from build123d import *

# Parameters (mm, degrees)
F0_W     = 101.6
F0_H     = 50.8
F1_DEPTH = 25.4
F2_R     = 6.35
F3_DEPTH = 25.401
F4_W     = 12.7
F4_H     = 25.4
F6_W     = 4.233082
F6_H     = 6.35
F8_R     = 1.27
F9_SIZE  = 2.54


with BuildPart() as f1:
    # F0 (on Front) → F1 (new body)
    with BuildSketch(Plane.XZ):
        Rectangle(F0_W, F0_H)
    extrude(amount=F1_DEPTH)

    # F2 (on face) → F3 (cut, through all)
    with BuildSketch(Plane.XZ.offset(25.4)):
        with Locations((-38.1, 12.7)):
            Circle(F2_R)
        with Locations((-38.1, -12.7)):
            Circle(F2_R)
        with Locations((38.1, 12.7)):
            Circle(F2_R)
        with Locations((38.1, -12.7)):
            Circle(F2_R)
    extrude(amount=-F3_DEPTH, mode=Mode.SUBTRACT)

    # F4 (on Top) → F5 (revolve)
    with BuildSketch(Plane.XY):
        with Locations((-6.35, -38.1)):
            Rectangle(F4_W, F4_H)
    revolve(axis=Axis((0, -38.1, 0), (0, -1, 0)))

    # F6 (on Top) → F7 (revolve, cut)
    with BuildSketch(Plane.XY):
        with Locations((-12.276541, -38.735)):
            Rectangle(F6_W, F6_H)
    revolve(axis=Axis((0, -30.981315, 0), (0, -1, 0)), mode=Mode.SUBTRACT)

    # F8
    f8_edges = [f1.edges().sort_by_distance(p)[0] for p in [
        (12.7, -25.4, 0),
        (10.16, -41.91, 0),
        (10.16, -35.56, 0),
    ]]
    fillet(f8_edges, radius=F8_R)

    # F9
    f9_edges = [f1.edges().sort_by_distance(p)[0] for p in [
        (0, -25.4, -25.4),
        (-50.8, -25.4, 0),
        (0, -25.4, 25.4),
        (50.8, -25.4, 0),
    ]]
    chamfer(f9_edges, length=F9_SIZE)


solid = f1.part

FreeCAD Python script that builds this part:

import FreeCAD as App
import Part
import Sketcher
Q = App.Units.Quantity


def edges_at(feature, points):
    """Names of the edges that pass closest to the given points."""
    edges = feature.Shape.Edges
    near = lambda p: min(range(len(edges)), key=lambda i: edges[i].distToShape(Part.Vertex(*p))[0])
    return sorted({f"Edge{near(p) + 1}" for p in points})

doc = App.newDocument("Part")
body = doc.addObject("PartDesign::Body", "Body")

sketch1 = body.newObject("Sketcher::SketchObject", "Sketch")
sketch1.AttachmentSupport = (doc.getObject("XZ_Plane"), [""])
sketch1.MapMode = "FlatFace"
sketch1.addGeometry(Part.LineSegment(App.Vector(-51, 25, 0), App.Vector(-51, -25, 0)), False)
sketch1.addGeometry(Part.LineSegment(App.Vector(-51, -25, 0), App.Vector(51, -25, 0)), False)
sketch1.addGeometry(Part.LineSegment(App.Vector(51, -25, 0), App.Vector(51, 25, 0)), False)
sketch1.addGeometry(Part.LineSegment(App.Vector(51, 25, 0), App.Vector(-51, 25, 0)), False)
sketch1.addConstraint(Sketcher.Constraint("Coincident", 0, 2, 1, 1))
sketch1.addConstraint(Sketcher.Constraint("Coincident", 1, 2, 2, 1))
sketch1.addConstraint(Sketcher.Constraint("Coincident", 2, 2, 3, 1))
sketch1.addConstraint(Sketcher.Constraint("Coincident", 3, 2, 0, 1))
sketch1.addConstraint(Sketcher.Constraint("Vertical", 0))
sketch1.addConstraint(Sketcher.Constraint("Horizontal", 1))
sketch1.addConstraint(Sketcher.Constraint("Vertical", 2))
sketch1.addConstraint(Sketcher.Constraint("Horizontal", 3))
sketch1.addConstraint(Sketcher.Constraint("Symmetric", 0, 2, 2, 2, -1, 1))
sketch1.addConstraint(Sketcher.Constraint("DistanceX", 1, 1, 1, 2, Q("4 in")))
sketch1.addConstraint(Sketcher.Constraint("DistanceY", 0, 2, 0, 1, Q("2 in")))
pad1 = body.newObject("PartDesign::Pad", "Pad")
pad1.Profile = sketch1
pad1.Length = Q("1 in")

sketch2 = body.newObject("Sketcher::SketchObject", "Sketch001")
sketch2.AttachmentSupport = (doc.getObject("XZ_Plane"), [""])
sketch2.MapMode = "FlatFace"
sketch2.AttachmentOffset = App.Placement(App.Vector(0, 0, 1 * 25.4), App.Rotation())
sketch2.addGeometry(Part.Circle(App.Vector(-38, 13, 0), App.Vector(0, 0, 1), 6), False)
sketch2.addGeometry(Part.Circle(App.Vector(-38, -13, 0), App.Vector(0, 0, 1), 6), False)
sketch2.addGeometry(Part.Circle(App.Vector(38, 13, 0), App.Vector(0, 0, 1), 6), False)
sketch2.addGeometry(Part.Circle(App.Vector(38, -13, 0), App.Vector(0, 0, 1), 6), False)
sketch2.addConstraint(Sketcher.Constraint("Equal", 0, 1))
sketch2.addConstraint(Sketcher.Constraint("Equal", 1, 2))
sketch2.addConstraint(Sketcher.Constraint("Equal", 2, 3))
sketch2.addConstraint(Sketcher.Constraint("Symmetric", 1, 3, 2, 3, -1, 1))
sketch2.addConstraint(Sketcher.Constraint("Symmetric", 0, 3, 3, 3, -1, 1))
sketch2.addConstraint(Sketcher.Constraint("Symmetric", 0, 3, 2, 3, -2))
sketch2.addConstraint(Sketcher.Constraint("Diameter", 0, Q("0.5 in")))
sketch2.addConstraint(Sketcher.Constraint("DistanceY", 1, 3, 0, 3, Q("1 in")))
sketch2.addConstraint(Sketcher.Constraint("DistanceX", 0, 3, 2, 3, Q("3 in")))
pocket1 = body.newObject("PartDesign::Pocket", "Pocket")
pocket1.Profile = sketch2
pocket1.Type = "ThroughAll"

sketch3 = body.newObject("Sketcher::SketchObject", "Sketch002")
sketch3.AttachmentSupport = (doc.getObject("XY_Plane"), [""])
sketch3.MapMode = "FlatFace"
sketch3.addGeometry(Part.LineSegment(App.Vector(-13, -25, 0), App.Vector(-13, -51, 0)), False)
sketch3.addGeometry(Part.LineSegment(App.Vector(-13, -51, 0), App.Vector(0, -51, 0)), False)
sketch3.addGeometry(Part.LineSegment(App.Vector(0, -51, 0), App.Vector(0, -25, 0)), False)
sketch3.addGeometry(Part.LineSegment(App.Vector(0, -25, 0), App.Vector(-13, -25, 0)), False)
sketch3.addConstraint(Sketcher.Constraint("Coincident", 0, 2, 1, 1))
sketch3.addConstraint(Sketcher.Constraint("Coincident", 1, 2, 2, 1))
sketch3.addConstraint(Sketcher.Constraint("Coincident", 2, 2, 3, 1))
sketch3.addConstraint(Sketcher.Constraint("Coincident", 3, 2, 0, 1))
sketch3.addConstraint(Sketcher.Constraint("Vertical", 0))
sketch3.addConstraint(Sketcher.Constraint("Horizontal", 1))
sketch3.addConstraint(Sketcher.Constraint("Vertical", 2))
sketch3.addConstraint(Sketcher.Constraint("Horizontal", 3))
sketch3.addConstraint(Sketcher.Constraint("PointOnObject", 1, 2, -2))
sketch3.addConstraint(Sketcher.Constraint("DistanceY", 0, 2, 0, 1, Q("1 in")))
sketch3.addConstraint(Sketcher.Constraint("DistanceX", 1, 1, 1, 2, Q("0.5 in")))
sketch3.addConstraint(Sketcher.Constraint("DistanceY", 0, 2, -1, 1, Q("2 in")))
revolution = body.newObject("PartDesign::Revolution", "Revolution")
revolution.Profile = sketch3
revolution.ReferenceAxis = (sketch3, ["V_Axis"])
revolution.Angle = 360

sketch4 = body.newObject("Sketcher::SketchObject", "Sketch003")
sketch4.AttachmentSupport = (doc.getObject("XY_Plane"), [""])
sketch4.MapMode = "FlatFace"
sketch4.addGeometry(Part.LineSegment(App.Vector(-14.4, -35.6, 0), App.Vector(-14.4, -41.9, 0)), False)
sketch4.addGeometry(Part.LineSegment(App.Vector(-14.4, -41.9, 0), App.Vector(-10.2, -41.9, 0)), False)
sketch4.addGeometry(Part.LineSegment(App.Vector(-10.2, -41.9, 0), App.Vector(-10.2, -35.6, 0)), False)
sketch4.addGeometry(Part.LineSegment(App.Vector(-10.2, -35.6, 0), App.Vector(-14.4, -35.6, 0)), False)
sketch4.addConstraint(Sketcher.Constraint("Coincident", 0, 2, 1, 1))
sketch4.addConstraint(Sketcher.Constraint("Coincident", 1, 2, 2, 1))
sketch4.addConstraint(Sketcher.Constraint("Coincident", 2, 2, 3, 1))
sketch4.addConstraint(Sketcher.Constraint("Coincident", 3, 2, 0, 1))
sketch4.addConstraint(Sketcher.Constraint("Vertical", 0))
sketch4.addConstraint(Sketcher.Constraint("Horizontal", 1))
sketch4.addConstraint(Sketcher.Constraint("Vertical", 2))
sketch4.addConstraint(Sketcher.Constraint("Horizontal", 3))
sketch4.addConstraint(Sketcher.Constraint("DistanceY", 0, 2, 0, 1, Q("0.25 in")))
sketch4.addConstraint(Sketcher.Constraint("DistanceX", 1, 2, -1, 1, Q("0.4 in")))
sketch4.addConstraint(Sketcher.Constraint("DistanceY", 2, 2, -1, 1, Q("1.4 in")))
sketch4.addConstraint(Sketcher.Constraint("DistanceX", 1, 1, 1, 2, Q("4.233082 mm")))
groove = body.newObject("PartDesign::Groove", "Groove")
groove.Profile = sketch4
groove.ReferenceAxis = (sketch4, ["V_Axis"])
groove.Angle = 360
doc.recompute()

fillet = body.newObject("PartDesign::Fillet", "Fillet")
fillet.Base = (groove, edges_at(groove, [(12.7, -25.4, 0), (10.16, -41.91, 0), (10.16, -35.56, 0)]))
fillet.Radius = Q("0.05 in")
doc.recompute()

chamfer = body.newObject("PartDesign::Chamfer", "Chamfer")
chamfer.Base = (fillet, edges_at(fillet, [
    (0, -25.4, -25.4),
    (-50.8, -25.4, 0),
    (0, -25.4, 25.4),
    (50.8, -25.4, 0),
]))
chamfer.Size = Q("0.1 in")

doc.recompute()
